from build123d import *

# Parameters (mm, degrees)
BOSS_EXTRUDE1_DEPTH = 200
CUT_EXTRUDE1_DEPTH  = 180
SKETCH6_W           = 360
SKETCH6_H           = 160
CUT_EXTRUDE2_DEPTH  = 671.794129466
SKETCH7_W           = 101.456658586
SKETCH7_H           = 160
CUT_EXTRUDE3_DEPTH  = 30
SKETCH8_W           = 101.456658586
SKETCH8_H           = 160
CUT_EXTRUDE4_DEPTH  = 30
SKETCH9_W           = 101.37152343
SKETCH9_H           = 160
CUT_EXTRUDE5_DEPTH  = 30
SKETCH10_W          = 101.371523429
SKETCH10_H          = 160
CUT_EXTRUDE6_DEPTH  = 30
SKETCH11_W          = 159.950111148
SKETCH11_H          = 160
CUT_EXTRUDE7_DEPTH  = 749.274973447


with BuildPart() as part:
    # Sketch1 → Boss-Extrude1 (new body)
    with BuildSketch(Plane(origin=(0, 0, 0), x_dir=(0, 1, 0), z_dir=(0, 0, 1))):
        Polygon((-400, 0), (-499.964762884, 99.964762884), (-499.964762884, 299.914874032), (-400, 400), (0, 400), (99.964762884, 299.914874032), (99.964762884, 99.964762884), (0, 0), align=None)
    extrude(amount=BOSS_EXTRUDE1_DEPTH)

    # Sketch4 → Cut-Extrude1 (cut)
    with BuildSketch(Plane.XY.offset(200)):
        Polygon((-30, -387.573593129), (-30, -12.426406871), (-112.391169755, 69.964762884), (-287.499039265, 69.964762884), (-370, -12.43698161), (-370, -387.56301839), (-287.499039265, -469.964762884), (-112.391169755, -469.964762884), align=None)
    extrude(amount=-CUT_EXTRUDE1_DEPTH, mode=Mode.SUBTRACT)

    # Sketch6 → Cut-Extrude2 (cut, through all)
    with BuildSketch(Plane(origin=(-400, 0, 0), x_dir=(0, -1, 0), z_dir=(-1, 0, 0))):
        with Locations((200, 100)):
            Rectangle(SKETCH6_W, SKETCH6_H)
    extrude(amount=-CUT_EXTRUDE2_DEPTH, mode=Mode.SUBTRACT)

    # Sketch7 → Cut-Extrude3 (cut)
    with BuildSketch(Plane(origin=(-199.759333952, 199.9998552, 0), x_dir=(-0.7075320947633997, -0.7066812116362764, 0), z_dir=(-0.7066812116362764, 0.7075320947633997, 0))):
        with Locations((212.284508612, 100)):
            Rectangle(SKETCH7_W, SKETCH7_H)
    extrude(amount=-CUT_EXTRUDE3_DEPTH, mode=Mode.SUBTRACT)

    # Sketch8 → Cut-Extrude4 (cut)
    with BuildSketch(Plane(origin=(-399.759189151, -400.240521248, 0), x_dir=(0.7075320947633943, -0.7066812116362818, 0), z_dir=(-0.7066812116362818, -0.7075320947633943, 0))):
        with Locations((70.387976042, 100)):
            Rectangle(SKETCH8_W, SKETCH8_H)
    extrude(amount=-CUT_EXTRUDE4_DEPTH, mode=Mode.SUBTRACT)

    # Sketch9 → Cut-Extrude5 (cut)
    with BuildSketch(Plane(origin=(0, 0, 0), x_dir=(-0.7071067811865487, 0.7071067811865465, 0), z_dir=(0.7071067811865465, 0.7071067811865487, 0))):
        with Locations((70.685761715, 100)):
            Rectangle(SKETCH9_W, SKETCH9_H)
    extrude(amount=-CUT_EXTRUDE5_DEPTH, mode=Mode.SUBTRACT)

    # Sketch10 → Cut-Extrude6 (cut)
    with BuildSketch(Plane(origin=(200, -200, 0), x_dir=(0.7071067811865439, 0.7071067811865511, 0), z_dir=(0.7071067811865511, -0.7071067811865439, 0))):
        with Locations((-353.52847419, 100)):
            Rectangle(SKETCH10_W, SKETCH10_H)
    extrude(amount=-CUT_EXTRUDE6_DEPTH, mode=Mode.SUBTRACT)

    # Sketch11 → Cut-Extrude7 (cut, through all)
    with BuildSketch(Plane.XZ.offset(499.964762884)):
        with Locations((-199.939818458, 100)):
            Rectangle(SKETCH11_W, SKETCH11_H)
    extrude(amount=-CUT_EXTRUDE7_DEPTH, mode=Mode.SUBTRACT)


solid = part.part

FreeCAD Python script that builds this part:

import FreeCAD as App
import Part
import Sketcher
from FreeCAD import Vector
Q = App.Units.Quantity

doc = App.newDocument("Part")
params = doc.addObject("Spreadsheet::Sheet", "Params")
for row, (alias, value) in enumerate([
    ("sketch1_height", "400 mm"),
    ("pad1_length", "200 mm"),
    ("pocket1_length", "180 mm"),
    ("sketch3_width", "360 mm"),
    ("sketch3_height", "160 mm"),
    ("sketch4_height", "160 mm"),
    ("pocket3_length", "30 mm"),
    ("sketch5_height", "160 mm"),
    ("pocket4_length", "30 mm"),
    ("sketch6_height", "160 mm"),
    ("pocket5_length", "30 mm"),
    ("sketch7_height", "160 mm"),
    ("pocket6_length", "30 mm"),
    ("sketch8_height", "160 mm"),
], start=1):
    params.set(f"A{row}", alias)
    params.set(f"B{row}", "=" + value)
    params.setAlias(f"B{row}", alias)

body = doc.addObject("PartDesign::Body", "Body")

# Sketch on XY plane
sketch1 = body.newObject("Sketcher::SketchObject", "Sketch")
sketch1.AttachmentSupport = (doc.getObject("XY_Plane"), [""])
sketch1.MapMode = "FlatFace"
sketch1.addGeometry([
    Part.LineSegment(Vector(-100, -500, 0), Vector(0, -400, 0)),  # 0
    Part.LineSegment(Vector(0, -400, 0), Vector(0, 0, 0)),  # 1
    Part.LineSegment(Vector(0, 0, 0), Vector(-100, 100, 0)),  # 2
    Part.LineSegment(Vector(-100, 100, 0), Vector(-300, 100, 0)),  # 3
    Part.LineSegment(Vector(-300, 100, 0), Vector(-400, 0, 0)),  # 4
    Part.LineSegment(Vector(-400, 0, 0), Vector(-400, -400, 0)),  # 5
    Part.LineSegment(Vector(-400, -400, 0), Vector(-300, -500, 0)),  # 6
    Part.LineSegment(Vector(-300, -500, 0), Vector(-100, -500, 0)),  # 7
], False)
sketch1.addConstraint([
    Sketcher.Constraint("Coincident", 0, 2, 1, 1),
    Sketcher.Constraint("Coincident", 1, 2, 2, 1),
    Sketcher.Constraint("Coincident", 2, 2, 3, 1),
    Sketcher.Constraint("Coincident", 3, 2, 4, 1),
    Sketcher.Constraint("Coincident", 4, 2, 5, 1),
    Sketcher.Constraint("Coincident", 5, 2, 6, 1),
    Sketcher.Constraint("Coincident", 6, 2, 7, 1),
    Sketcher.Constraint("Coincident", 7, 2, 0, 1),
    Sketcher.Constraint("Vertical", 1),
    Sketcher.Constraint("Horizontal", 3),
    Sketcher.Constraint("Vertical", 5),
    Sketcher.Constraint("Horizontal", 7),
    Sketcher.Constraint("Coincident", 1, 2, -1, 1),
    Sketcher.Constraint("PointOnObject", 4, 2, -1),
    Sketcher.Constraint("Perpendicular", 0, 2),
    Sketcher.Constraint("Horizontal", 0, 2, 5, 2),
    Sketcher.Constraint("Vertical", 3, 2, 6, 2),
    Sketcher.Constraint("Vertical", 2, 2, 7, 2),
    Sketcher.Constraint("Equal", 0, 2),
    Sketcher.Constraint("DistanceY", 1, 1, 1, 2, Q("400 mm")),
    Sketcher.Constraint("DistanceX", 4, 2, -1, 1, Q("400 mm")),
    Sketcher.Constraint("DistanceX", 3, 2, 3, 1, Q("199.950111 mm")),
    Sketcher.Constraint("Distance", 0, Q("141.371523 mm")),
])
sketch1.setExpression("Constraints[19]", "Params.sketch1_height")
pad1 = body.newObject("PartDesign::Pad", "Pad")
pad1.Profile = sketch1
pad1.setExpression("Length", "Params.pad1_length")

# Sketch on XY plane
sketch2 = body.newObject("Sketcher::SketchObject", "Sketch001")
sketch2.AttachmentSupport = (doc.getObject("XY_Plane"), [""])
sketch2.MapMode = "FlatFace"
sketch2.AttachmentOffset = App.Placement(Vector(0, 0, 200), App.Rotation())
sketch2.addGeometry([
    Part.LineSegment(Vector(-30, -388, 0), Vector(-30, -12, 0)),  # 0
    Part.LineSegment(Vector(-30, -12, 0), Vector(-112, 70, 0)),  # 1
    Part.LineSegment(Vector(-112, 70, 0), Vector(-287, 70, 0)),  # 2
    Part.LineSegment(Vector(-287, 70, 0), Vector(-370, -12, 0)),  # 3
    Part.LineSegment(Vector(-370, -12, 0), Vector(-370, -388, 0)),  # 4
    Part.LineSegment(Vector(-370, -388, 0), Vector(-287, -470, 0)),  # 5
    Part.LineSegment(Vector(-287, -470, 0), Vector(-112, -470, 0)),  # 6
    Part.LineSegment(Vector(-112, -470, 0), Vector(-30, -388, 0)),  # 7
], False)
sketch2.addConstraint([
    Sketcher.Constraint("Coincident", 0, 2, 1, 1),
    Sketcher.Constraint("Coincident", 1, 2, 2, 1),
    Sketcher.Constraint("Coincident", 2, 2, 3, 1),
    Sketcher.Constraint("Coincident", 3, 2, 4, 1),
    Sketcher.Constraint("Coincident", 4, 2, 5, 1),
    Sketcher.Constraint("Coincident", 5, 2, 6, 1),
    Sketcher.Constraint("Coincident", 6, 2, 7, 1),
    Sketcher.Constraint("Coincident", 7, 2, 0, 1),
    Sketcher.Constraint("Vertical", 0),
    Sketcher.Constraint("Horizontal", 2),
    Sketcher.Constraint("Vertical", 4),
    Sketcher.Constraint("Horizontal", 6),
    Sketcher.Constraint("Perpendicular", 1, 7),
    Sketcher.Constraint("Vertical", 2, 2, 5, 2),
    Sketcher.Constraint("Vertical", 1, 2, 6, 2),
    Sketcher.Constraint("Equal", 3, 5),
    Sketcher.Constraint("Equal", 1, 7),
    Sketcher.Constraint("DistanceX", 0, 2, -1, 1, Q("30 mm")),
    Sketcher.Constraint("DistanceX", 3, 2, -1, 1, Q("370 mm")),
    Sketcher.Constraint("DistanceX", 2, 2, 2, 1, Q("175.10787 mm")),
    Sketcher.Constraint("Distance", 1, Q("116.51871 mm")),
    Sketcher.Constraint("DistanceY", 0, 1, 0, 2, Q("375.147186 mm")),
    Sketcher.Constraint("DistanceY", 4, 2, 4, 1, Q("375.126037 mm")),
    Sketcher.Constraint("DistanceY", 3, 2, -1, 1, Q("12.436982 mm")),
])
pocket1 = body.newObject("PartDesign::Pocket", "Pocket")
pocket1.Profile = sketch2
pocket1.setExpression("Length", "Params.pocket1_length")

# Sketch on YZ plane
sketch3 = body.newObject("Sketcher::SketchObject", "Sketch002")
sketch3.AttachmentSupport = (doc.getObject("YZ_Plane"), [""])
sketch3.MapMode = "FlatFace"
sketch3.AttachmentOffset = App.Placement(Vector(0, 0, -400), App.Rotation())
sketch3.addGeometry([
    Part.LineSegment(Vector(-20, 180, 0), Vector(-20, 20, 0)),
    Part.LineSegment(Vector(-20, 20, 0), Vector(-380, 20, 0)),
    Part.LineSegment(Vector(-380, 20, 0), Vector(-380, 180, 0)),
    Part.LineSegment(Vector(-380, 180, 0), Vector(-20, 180, 0)),
], False)
sketch3.addConstraint([
    Sketcher.Constraint("Coincident", 0, 2, 1, 1),
    Sketcher.Constraint("Coincident", 1, 2, 2, 1),
    Sketcher.Constraint("Coincident", 2, 2, 3, 1),
    Sketcher.Constraint("Coincident", 3, 2, 0, 1),
    Sketcher.Constraint("Vertical", 0),
    Sketcher.Constraint("Horizontal", 1),
    Sketcher.Constraint("Vertical", 2),
    Sketcher.Constraint("Horizontal", 3),
    Sketcher.Constraint("DistanceX", 1, 2, 1, 1, Q("360 mm")),
    Sketcher.Constraint("DistanceY", 0, 2, 0, 1, Q("160 mm")),
    Sketcher.Constraint("DistanceX", 0, 2, -1, 1, Q("20 mm")),
    Sketcher.Constraint("DistanceY", -1, 1, 0, 2, Q("20 mm")),
])
sketch3.setExpression("Constraints[8]", "Params.sketch3_width")
sketch3.setExpression("Constraints[9]", "Params.sketch3_height")
pocket2 = body.newObject("PartDesign::Pocket", "Pocket001")
pocket2.Profile = sketch3
pocket2.Type = "ThroughAll"
pocket2.Reversed = True

# Sketch on an angled plane
sketch4 = body.newObject("Sketcher::SketchObject", "Sketch003")
sketch4.Placement = App.Placement(Vector(-199.759334, 199.999855, 0), App.Rotation(Vector(-0.707532095, -0.706681212, 0), Vector(0, 0, 1.000000001), Vector(-0.706681212, 0.707532095, 0), "ZXY"))
sketch4.addGeometry([
    Part.LineSegment(Vector(162, 180, 0), Vector(162, 20, 0)),
    Part.LineSegment(Vector(162, 20, 0), Vector(263, 20, 0)),
    Part.LineSegment(Vector(263, 20, 0), Vector(263, 180, 0)),
    Part.LineSegment(Vector(263, 180, 0), Vector(162, 180, 0)),
], False)
sketch4.addConstraint([
    Sketcher.Constraint("Coincident", 0, 2, 1, 1),
    Sketcher.Constraint("Coincident", 1, 2, 2, 1),
    Sketcher.Constraint("Coincident", 2, 2, 3, 1),
    Sketcher.Constraint("Coincident", 3, 2, 0, 1),
    Sketcher.Constraint("Vertical", 0),
    Sketcher.Constraint("Horizontal", 1),
    Sketcher.Constraint("Vertical", 2),
    Sketcher.Constraint("Horizontal", 3),
    Sketcher.Constraint("DistanceY", 0, 2, 0, 1, Q("160 mm")),
    Sketcher.Constraint("DistanceY", -1, 1, 0, 2, Q("20 mm")),
    Sketcher.Constraint("DistanceX", 1, 1, 1, 2, Q("101.456659 mm")),
    Sketcher.Constraint("DistanceX", -1, 1, 0, 2, Q("161.556179 mm")),
])
sketch4.setExpression("Constraints[8]", "Params.sketch4_height")
pocket3 = body.newObject("PartDesign::Pocket", "Pocket002")
pocket3.Profile = sketch4
pocket3.setExpression("Length", "Params.pocket3_length")

# Sketch on an angled plane
sketch5 = body.newObject("Sketcher::SketchObject", "Sketch004")
sketch5.Placement = App.Placement(Vector(-399.759189, -400.240521, 0), App.Rotation(Vector(0.707532095, -0.706681212, 0), Vector(0, 0, 1.000000001), Vector(-0.706681212, -0.707532095, 0), "ZXY"))
sketch5.addGeometry([
    Part.LineSegment(Vector(20, 180, 0), Vector(20, 20, 0)),
    Part.LineSegment(Vector(20, 20, 0), Vector(121, 20, 0)),
    Part.LineSegment(Vector(121, 20, 0), Vector(121, 180, 0)),
    Part.LineSegment(Vector(121, 180, 0), Vector(20, 180, 0)),
], False)
sketch5.addConstraint([
    Sketcher.Constraint("Coincident", 0, 2, 1, 1),
    Sketcher.Constraint("Coincident", 1, 2, 2, 1),
    Sketcher.Constraint("Coincident", 2, 2, 3, 1),
    Sketcher.Constraint("Coincident", 3, 2, 0, 1),
    Sketcher.Constraint("Vertical", 0),
    Sketcher.Constraint("Horizontal", 1),
    Sketcher.Constraint("Vertical", 2),
    Sketcher.Constraint("Horizontal", 3),
    Sketcher.Constraint("DistanceY", 0, 2, 0, 1, Q("160 mm")),
    Sketcher.Constraint("DistanceY", -1, 1, 0, 2, Q("20 mm")),
    Sketcher.Constraint("DistanceX", 1, 1, 1, 2, Q("101.456659 mm")),
    Sketcher.Constraint("DistanceX", -1, 1, 0, 2, Q("19.659647 mm")),
])
sketch5.setExpression("Constraints[8]", "Params.sketch5_height")
pocket4 = body.newObject("PartDesign::Pocket", "Pocket003")
pocket4.Profile = sketch5
pocket4.setExpression("Length", "Params.pocket4_length")

# Sketch on an angled plane
sketch6 = body.newObject("Sketcher::SketchObject", "Sketch005")
sketch6.Placement = App.Placement(Vector(0, 0, 0), App.Rotation(Vector(-0.707106781, 0.707106781, 0), Vector(0, 0, 0.999999999), Vector(0.707106781, 0.707106781, 0), "ZXY"))
sketch6.addGeometry([
    Part.LineSegment(Vector(20, 180, 0), Vector(20, 20, 0)),
    Part.LineSegment(Vector(20, 20, 0), Vector(121, 20, 0)),
    Part.LineSegment(Vector(121, 20, 0), Vector(121, 180, 0)),
    Part.LineSegment(Vector(121, 180, 0), Vector(20, 180, 0)),
], False)
sketch6.addConstraint([
    Sketcher.Constraint("Coincident", 0, 2, 1, 1),
    Sketcher.Constraint("Coincident", 1, 2, 2, 1),
    Sketcher.Constraint("Coincident", 2, 2, 3, 1),
    Sketcher.Constraint("Coincident", 3, 2, 0, 1),
    Sketcher.Constraint("Vertical", 0),
    Sketcher.Constraint("Horizontal", 1),
    Sketcher.Constraint("Vertical", 2),
    Sketcher.Constraint("Horizontal", 3),
    Sketcher.Constraint("DistanceY", 0, 2, 0, 1, Q("160 mm")),
    Sketcher.Constraint("DistanceX", -1, 1, 0, 2, Q("20 mm")),
    Sketcher.Constraint("DistanceY", -1, 1, 0, 2, Q("20 mm")),
    Sketcher.Constraint("DistanceX", 1, 1, 1, 2, Q("101.371523 mm")),
])
sketch6.setExpression("Constraints[8]", "Params.sketch6_height")
pocket5 = body.newObject("PartDesign::Pocket", "Pocket004")
pocket5.Profile = sketch6
pocket5.setExpression("Length", "Params.pocket5_length")

# Sketch on an angled plane
sketch7 = body.newObject("Sketcher::SketchObject", "Sketch006")
sketch7.Placement = App.Placement(Vector(200, -200, 0), App.Rotation(Vector(0.707106781, 0.707106781, 0), Vector(0, 0, 0.999999999), Vector(0.707106781, -0.707106781, 0), "ZXY"))
sketch7.addGeometry([
    Part.LineSegment(Vector(-404, 180, 0), Vector(-404, 20, 0)),
    Part.LineSegment(Vector(-404, 20, 0), Vector(-303, 20, 0)),
    Part.LineSegment(Vector(-303, 20, 0), Vector(-303, 180, 0)),
    Part.LineSegment(Vector(-303, 180, 0), Vector(-404, 180, 0)),
], False)
sketch7.addConstraint([
    Sketcher.Constraint("Coincident", 0, 2, 1, 1),
    Sketcher.Constraint("Coincident", 1, 2, 2, 1),
    Sketcher.Constraint("Coincident", 2, 2, 3, 1),
    Sketcher.Constraint("Coincident", 3, 2, 0, 1),
    Sketcher.Constraint("Vertical", 0),
    Sketcher.Constraint("Horizontal", 1),
    Sketcher.Constraint("Vertical", 2),
    Sketcher.Constraint("Horizontal", 3),
    Sketcher.Constraint("DistanceY", 0, 2, 0, 1, Q("160 mm")),
    Sketcher.Constraint("DistanceY", -1, 1, 0, 2, Q("20 mm")),
    Sketcher.Constraint("DistanceX", 1, 1, 1, 2, Q("101.371523 mm")),
    Sketcher.Constraint("DistanceX", 0, 2, -1, 1, Q("404.214236 mm")),
])
sketch7.setExpression("Constraints[8]", "Params.sketch7_height")
pocket6 = body.newObject("PartDesign::Pocket", "Pocket005")
pocket6.Profile = sketch7
pocket6.setExpression("Length", "Params.pocket6_length")

# Sketch on XZ plane
sketch8 = body.newObject("Sketcher::SketchObject", "Sketch007")
sketch8.AttachmentSupport = (doc.getObject("XZ_Plane"), [""])
sketch8.MapMode = "FlatFace"
sketch8.AttachmentOffset = App.Placement(Vector(0, 0, 499.964763), App.Rotation())
sketch8.addGeometry([
    Part.LineSegment(Vector(-280, 180, 0), Vector(-280, 20, 0)),
    Part.LineSegment(Vector(-280, 20, 0), Vector(-120, 20, 0)),
    Part.LineSegment(Vector(-120, 20, 0), Vector(-120, 180, 0)),
    Part.LineSegment(Vector(-120, 180, 0), Vector(-280, 180, 0)),
], False)
sketch8.addConstraint([
    Sketcher.Constraint("Coincident", 0, 2, 1, 1),
    Sketcher.Constraint("Coincident", 1, 2, 2, 1),
    Sketcher.Constraint("Coincident", 2, 2, 3, 1),
    Sketcher.Constraint("Coincident", 3, 2, 0, 1),
    Sketcher.Constraint("Vertical", 0),
    Sketcher.Constraint("Horizontal", 1),
    Sketcher.Constraint("Vertical", 2),
    Sketcher.Constraint("Horizontal", 3),
    Sketcher.Constraint("DistanceY", 0, 2, 0, 1, Q("160 mm")),
    Sketcher.Constraint("DistanceY", -1, 1, 0, 2, Q("20 mm")),
    Sketcher.Constraint("DistanceX", 1, 1, 1, 2, Q("159.950111 mm")),
    Sketcher.Constraint("DistanceX", 0, 2, -1, 1, Q("279.914874 mm")),
])
sketch8.setExpression("Constraints[8]", "Params.sketch8_height")
pocket7 = body.newObject("PartDesign::Pocket", "Pocket006")
pocket7.Profile = sketch8
pocket7.Type = "ThroughAll"

doc.recompute()
